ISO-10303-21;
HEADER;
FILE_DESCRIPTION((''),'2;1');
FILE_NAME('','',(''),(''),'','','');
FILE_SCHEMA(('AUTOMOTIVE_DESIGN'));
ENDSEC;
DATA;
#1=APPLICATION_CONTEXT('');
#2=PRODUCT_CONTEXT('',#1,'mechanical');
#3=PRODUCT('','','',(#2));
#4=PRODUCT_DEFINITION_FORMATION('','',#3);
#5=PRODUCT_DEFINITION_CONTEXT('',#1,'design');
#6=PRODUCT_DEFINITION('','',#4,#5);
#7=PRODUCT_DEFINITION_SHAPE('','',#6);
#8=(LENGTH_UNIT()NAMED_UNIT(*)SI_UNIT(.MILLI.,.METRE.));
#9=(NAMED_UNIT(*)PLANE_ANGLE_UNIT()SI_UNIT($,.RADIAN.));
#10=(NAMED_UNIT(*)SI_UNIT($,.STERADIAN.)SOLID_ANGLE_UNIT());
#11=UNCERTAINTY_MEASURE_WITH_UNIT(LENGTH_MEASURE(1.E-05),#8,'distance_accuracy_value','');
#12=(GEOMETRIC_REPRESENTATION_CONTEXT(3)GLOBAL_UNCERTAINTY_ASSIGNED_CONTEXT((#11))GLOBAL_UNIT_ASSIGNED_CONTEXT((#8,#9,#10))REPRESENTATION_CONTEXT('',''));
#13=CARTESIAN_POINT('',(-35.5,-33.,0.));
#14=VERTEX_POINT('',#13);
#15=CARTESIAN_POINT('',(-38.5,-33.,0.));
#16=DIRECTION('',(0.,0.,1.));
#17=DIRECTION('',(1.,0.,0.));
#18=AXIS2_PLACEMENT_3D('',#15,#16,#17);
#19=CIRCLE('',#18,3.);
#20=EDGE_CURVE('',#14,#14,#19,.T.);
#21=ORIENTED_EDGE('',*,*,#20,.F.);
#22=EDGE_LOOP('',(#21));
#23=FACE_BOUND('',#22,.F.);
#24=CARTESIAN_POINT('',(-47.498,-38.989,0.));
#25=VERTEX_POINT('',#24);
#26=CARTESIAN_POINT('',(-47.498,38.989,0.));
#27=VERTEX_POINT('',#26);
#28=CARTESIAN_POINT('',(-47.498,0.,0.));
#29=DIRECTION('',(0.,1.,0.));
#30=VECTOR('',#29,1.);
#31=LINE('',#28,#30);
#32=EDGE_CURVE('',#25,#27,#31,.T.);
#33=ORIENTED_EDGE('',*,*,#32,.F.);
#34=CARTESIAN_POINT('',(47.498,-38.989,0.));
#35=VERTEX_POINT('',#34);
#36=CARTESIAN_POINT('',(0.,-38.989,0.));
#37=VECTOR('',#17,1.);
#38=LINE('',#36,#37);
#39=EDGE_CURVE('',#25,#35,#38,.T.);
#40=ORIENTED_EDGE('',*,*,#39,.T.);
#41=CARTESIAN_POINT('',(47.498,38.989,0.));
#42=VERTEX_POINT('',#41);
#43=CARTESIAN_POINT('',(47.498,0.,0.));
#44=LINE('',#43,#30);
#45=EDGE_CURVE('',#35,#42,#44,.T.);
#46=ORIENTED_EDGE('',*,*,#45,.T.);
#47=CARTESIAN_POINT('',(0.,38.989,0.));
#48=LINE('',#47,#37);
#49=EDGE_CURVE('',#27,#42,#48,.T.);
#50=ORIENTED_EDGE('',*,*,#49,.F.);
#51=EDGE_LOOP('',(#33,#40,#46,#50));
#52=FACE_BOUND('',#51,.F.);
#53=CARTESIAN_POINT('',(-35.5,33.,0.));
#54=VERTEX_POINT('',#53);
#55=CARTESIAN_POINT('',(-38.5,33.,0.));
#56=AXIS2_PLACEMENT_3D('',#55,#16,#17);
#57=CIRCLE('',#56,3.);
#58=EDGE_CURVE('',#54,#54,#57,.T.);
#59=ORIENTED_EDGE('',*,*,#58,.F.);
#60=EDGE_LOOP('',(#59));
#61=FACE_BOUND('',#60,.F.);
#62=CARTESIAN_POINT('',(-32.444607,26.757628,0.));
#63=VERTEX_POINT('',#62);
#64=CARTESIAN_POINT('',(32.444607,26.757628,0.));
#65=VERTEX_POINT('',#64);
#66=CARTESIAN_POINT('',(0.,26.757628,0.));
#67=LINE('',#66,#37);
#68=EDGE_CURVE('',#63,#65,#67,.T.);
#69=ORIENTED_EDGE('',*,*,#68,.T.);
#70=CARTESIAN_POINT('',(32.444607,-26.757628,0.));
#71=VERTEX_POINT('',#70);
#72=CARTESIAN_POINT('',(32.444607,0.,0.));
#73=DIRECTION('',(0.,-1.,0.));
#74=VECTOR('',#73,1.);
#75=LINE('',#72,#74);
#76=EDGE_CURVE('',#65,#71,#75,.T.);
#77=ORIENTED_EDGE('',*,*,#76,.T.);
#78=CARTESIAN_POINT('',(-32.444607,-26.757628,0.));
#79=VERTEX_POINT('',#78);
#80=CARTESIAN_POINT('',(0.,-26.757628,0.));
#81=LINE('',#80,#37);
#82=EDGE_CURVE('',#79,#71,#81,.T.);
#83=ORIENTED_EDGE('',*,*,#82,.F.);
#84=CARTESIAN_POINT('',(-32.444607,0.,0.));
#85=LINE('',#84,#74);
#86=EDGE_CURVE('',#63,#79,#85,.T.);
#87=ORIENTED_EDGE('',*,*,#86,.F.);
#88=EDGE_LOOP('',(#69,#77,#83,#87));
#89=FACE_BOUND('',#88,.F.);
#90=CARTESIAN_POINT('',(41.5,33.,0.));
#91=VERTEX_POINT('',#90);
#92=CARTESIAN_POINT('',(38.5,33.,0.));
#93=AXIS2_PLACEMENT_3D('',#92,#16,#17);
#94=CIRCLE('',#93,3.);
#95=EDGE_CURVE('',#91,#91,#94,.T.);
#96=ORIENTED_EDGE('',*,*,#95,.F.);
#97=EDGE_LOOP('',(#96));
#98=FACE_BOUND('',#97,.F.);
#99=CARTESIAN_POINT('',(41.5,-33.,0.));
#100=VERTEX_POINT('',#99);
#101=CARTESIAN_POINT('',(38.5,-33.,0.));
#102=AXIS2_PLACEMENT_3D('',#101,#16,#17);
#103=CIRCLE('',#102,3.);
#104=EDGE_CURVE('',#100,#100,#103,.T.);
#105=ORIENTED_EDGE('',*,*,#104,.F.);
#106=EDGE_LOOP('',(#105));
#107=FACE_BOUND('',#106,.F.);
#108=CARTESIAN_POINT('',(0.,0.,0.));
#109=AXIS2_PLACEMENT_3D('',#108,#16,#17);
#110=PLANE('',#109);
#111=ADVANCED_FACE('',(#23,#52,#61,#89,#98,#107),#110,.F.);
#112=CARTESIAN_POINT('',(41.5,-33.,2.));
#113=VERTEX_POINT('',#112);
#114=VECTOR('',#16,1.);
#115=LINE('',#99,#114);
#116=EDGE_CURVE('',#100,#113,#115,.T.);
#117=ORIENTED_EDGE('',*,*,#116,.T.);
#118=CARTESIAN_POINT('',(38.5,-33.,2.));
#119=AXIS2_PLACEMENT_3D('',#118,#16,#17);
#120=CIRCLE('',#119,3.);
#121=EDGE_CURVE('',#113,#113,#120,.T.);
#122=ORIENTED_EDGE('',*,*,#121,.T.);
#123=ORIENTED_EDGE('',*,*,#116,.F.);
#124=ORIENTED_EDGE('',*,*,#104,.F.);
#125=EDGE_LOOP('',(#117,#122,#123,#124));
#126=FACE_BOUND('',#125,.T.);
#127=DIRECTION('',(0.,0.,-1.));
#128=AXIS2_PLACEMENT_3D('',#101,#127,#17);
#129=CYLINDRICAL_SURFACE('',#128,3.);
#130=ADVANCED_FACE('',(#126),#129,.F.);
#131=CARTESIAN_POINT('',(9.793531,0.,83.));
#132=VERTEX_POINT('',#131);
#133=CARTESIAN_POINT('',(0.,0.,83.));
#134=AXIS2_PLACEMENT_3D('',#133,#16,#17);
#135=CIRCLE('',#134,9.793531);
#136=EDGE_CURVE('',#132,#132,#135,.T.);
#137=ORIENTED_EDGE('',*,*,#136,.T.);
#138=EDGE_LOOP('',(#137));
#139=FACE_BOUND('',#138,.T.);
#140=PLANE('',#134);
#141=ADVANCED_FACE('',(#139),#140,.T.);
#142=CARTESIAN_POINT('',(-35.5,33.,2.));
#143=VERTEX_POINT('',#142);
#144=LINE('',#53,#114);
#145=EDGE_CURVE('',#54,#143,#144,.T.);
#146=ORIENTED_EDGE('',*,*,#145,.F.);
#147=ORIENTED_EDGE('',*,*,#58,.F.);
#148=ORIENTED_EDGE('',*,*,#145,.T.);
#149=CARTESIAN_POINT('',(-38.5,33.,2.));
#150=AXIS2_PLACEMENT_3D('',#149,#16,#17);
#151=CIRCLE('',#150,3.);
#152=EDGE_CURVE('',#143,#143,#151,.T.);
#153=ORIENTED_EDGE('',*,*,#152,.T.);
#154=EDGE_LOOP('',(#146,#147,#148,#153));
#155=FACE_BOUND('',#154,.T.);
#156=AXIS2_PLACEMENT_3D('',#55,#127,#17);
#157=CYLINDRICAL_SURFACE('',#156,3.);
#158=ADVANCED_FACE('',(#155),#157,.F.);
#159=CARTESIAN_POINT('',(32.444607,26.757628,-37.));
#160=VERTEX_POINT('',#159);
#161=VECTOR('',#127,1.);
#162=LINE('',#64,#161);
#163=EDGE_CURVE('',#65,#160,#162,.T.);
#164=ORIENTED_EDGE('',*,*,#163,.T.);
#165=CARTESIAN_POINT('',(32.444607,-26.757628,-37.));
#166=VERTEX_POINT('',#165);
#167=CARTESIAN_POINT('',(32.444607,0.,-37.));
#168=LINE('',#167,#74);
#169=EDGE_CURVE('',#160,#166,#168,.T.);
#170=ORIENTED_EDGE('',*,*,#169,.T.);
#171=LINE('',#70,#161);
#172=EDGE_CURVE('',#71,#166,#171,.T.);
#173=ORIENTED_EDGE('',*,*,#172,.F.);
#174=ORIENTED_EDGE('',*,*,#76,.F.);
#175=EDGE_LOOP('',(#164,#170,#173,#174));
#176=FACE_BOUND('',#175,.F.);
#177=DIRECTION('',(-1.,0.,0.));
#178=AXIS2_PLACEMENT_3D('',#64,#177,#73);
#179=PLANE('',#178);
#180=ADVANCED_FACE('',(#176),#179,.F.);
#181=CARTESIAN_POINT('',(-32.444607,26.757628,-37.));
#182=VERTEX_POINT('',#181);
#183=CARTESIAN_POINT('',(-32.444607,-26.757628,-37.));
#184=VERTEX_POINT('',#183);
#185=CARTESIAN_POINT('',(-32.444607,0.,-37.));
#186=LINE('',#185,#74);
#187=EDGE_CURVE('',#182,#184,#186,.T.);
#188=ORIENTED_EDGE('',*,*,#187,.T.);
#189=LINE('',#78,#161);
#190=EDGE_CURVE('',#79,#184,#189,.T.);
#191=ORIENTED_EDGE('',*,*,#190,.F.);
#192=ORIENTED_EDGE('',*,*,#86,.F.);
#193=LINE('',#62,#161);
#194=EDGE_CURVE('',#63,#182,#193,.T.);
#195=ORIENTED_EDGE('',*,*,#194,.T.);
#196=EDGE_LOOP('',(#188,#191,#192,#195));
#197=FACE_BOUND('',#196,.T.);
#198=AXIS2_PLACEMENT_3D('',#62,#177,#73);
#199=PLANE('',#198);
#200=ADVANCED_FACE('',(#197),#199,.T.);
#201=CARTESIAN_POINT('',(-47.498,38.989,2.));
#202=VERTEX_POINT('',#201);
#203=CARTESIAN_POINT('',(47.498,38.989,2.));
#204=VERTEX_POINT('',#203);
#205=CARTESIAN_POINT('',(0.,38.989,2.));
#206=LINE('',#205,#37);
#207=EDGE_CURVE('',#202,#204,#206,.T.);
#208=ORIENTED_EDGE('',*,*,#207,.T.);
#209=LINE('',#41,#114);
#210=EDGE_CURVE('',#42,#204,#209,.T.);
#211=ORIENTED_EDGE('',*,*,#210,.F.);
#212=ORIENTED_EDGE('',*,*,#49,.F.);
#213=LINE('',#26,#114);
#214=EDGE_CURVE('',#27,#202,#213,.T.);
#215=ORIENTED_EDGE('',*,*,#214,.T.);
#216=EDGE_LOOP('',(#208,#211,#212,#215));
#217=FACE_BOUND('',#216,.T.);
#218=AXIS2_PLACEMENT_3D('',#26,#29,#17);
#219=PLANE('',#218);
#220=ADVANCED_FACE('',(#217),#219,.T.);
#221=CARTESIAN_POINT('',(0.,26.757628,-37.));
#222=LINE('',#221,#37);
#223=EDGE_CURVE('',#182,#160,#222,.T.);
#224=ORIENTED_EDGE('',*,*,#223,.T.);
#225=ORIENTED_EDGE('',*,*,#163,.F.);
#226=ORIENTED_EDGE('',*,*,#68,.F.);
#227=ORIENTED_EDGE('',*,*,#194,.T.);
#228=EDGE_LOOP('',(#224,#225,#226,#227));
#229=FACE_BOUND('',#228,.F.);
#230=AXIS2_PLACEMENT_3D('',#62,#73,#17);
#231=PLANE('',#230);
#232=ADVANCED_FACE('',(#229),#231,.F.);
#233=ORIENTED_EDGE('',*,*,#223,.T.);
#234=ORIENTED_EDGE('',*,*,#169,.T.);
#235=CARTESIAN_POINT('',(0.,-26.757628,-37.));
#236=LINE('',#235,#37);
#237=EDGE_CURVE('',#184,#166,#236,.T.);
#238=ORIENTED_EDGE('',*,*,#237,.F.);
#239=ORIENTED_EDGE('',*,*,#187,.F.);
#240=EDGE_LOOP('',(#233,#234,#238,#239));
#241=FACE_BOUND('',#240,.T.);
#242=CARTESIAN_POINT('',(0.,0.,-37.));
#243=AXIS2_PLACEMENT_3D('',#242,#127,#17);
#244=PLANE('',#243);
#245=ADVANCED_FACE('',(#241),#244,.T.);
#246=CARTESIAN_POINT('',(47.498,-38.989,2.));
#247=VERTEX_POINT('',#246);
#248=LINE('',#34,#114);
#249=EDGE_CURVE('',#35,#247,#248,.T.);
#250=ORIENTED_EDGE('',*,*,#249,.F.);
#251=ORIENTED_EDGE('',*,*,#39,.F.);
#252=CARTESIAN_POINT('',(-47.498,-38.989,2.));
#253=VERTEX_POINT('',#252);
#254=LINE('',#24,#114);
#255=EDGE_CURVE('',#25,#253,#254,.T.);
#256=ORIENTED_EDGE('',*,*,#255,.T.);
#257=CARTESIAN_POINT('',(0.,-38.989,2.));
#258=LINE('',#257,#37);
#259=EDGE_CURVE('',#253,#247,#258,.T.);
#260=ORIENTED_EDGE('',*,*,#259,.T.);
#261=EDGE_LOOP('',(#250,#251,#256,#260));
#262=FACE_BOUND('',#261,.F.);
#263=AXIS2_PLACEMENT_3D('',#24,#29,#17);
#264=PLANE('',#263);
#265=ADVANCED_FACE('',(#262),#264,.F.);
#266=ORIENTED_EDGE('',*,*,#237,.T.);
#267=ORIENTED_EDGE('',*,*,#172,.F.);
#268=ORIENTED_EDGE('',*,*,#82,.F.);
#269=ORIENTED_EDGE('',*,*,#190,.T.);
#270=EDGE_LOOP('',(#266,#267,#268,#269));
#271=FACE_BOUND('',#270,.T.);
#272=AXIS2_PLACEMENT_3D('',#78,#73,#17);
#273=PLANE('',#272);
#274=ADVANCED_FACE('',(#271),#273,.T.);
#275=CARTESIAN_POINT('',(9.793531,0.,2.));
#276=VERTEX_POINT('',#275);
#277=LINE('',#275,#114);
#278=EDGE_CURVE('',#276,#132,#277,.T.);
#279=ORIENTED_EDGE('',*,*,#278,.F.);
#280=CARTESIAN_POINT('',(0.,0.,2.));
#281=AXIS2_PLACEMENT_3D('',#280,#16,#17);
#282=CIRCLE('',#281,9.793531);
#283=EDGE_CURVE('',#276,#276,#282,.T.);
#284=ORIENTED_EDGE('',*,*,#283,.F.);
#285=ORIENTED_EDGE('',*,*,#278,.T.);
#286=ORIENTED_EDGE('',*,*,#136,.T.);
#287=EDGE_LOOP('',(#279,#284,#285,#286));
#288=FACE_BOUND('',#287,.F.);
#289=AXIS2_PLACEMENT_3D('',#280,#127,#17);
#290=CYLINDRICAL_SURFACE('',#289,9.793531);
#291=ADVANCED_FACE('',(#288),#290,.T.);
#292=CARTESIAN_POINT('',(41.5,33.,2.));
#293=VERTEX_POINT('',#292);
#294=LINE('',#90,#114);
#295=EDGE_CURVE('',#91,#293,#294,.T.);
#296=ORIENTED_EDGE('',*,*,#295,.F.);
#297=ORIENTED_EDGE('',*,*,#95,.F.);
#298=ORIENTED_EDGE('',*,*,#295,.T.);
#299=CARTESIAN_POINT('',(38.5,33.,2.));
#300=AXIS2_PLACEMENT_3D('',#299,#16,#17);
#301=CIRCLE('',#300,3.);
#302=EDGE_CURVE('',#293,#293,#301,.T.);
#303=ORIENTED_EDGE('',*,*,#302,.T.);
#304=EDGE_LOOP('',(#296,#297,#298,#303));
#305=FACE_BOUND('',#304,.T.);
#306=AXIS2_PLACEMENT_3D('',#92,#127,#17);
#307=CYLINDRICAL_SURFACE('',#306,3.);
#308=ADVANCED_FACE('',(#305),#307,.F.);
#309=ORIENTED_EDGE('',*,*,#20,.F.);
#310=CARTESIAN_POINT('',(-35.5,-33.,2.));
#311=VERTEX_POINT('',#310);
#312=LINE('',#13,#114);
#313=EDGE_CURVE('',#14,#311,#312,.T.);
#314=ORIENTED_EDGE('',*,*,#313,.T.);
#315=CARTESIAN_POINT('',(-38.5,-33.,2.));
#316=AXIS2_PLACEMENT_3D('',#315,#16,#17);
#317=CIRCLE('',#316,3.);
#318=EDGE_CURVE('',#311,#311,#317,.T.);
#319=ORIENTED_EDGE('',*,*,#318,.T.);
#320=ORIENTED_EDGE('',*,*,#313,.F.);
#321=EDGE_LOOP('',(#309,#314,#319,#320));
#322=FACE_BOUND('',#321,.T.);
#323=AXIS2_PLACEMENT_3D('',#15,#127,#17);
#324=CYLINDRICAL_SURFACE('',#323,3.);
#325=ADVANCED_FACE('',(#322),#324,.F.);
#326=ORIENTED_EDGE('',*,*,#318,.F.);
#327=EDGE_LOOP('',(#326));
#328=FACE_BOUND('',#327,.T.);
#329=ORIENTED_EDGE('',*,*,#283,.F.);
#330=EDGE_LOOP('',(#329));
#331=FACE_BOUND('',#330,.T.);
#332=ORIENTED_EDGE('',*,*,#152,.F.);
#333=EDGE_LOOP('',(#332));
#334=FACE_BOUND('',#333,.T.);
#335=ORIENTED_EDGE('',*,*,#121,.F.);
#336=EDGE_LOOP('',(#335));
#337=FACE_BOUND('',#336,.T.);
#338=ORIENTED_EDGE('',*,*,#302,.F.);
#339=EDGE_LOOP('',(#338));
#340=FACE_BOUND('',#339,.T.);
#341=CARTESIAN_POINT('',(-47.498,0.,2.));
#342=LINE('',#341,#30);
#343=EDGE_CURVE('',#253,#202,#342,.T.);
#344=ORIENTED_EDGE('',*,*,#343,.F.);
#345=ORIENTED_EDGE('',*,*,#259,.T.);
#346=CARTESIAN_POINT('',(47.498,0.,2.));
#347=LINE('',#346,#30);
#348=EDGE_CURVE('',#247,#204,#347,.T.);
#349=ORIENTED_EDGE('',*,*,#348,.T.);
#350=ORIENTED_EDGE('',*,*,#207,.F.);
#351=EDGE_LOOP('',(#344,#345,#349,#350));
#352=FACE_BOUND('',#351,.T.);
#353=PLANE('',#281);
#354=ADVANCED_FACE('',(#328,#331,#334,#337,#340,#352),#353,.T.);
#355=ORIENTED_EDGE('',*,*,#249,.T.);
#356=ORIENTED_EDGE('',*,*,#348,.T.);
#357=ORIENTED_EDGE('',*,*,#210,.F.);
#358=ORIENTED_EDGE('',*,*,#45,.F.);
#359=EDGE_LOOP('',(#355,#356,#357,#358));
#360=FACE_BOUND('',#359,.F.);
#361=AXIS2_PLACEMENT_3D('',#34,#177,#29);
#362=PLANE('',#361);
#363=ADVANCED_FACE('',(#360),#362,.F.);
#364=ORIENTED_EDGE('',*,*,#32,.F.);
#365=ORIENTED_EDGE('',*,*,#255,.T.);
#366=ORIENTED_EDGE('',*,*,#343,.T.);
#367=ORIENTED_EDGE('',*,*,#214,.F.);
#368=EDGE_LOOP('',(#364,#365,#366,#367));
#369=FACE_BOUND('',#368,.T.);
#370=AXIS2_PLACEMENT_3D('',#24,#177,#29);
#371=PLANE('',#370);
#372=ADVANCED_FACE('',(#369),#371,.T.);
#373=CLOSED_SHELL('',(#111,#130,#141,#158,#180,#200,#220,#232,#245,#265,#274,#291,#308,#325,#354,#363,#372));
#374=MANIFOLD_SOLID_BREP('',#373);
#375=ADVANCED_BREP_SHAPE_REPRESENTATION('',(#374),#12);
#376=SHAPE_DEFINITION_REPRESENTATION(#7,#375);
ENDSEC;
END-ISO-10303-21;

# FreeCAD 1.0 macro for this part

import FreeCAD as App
import Part
import Sketcher
from FreeCAD import Vector
Q = App.Units.Quantity

doc = App.newDocument("Part")
body = doc.addObject("PartDesign::Body", "Body")

# Sketch on XY plane
sketch1 = doc.addObject("Sketcher::SketchObject", "Sketch")
body.addObject(sketch1)
sketch1.AttachmentSupport = (doc.XY_Plane, [""])
sketch1.MapMode = "FlatFace"
sketch1.addGeometry([
    Part.LineSegment(Vector(-47.5, 39, 0), Vector(-47.5, -39, 0)),  # 0
    Part.LineSegment(Vector(-47.5, -39, 0), Vector(47.5, -39, 0)),  # 1
    Part.LineSegment(Vector(47.5, -39, 0), Vector(47.5, 39, 0)),  # 2
    Part.LineSegment(Vector(47.5, 39, 0), Vector(-47.5, 39, 0)),  # 3
    Part.Circle(Vector(-38.5, -33, 0), Vector(0, 0, 1), 3),  # 4
    Part.Circle(Vector(38.5, -33, 0), Vector(0, 0, 1), 3),  # 5
    Part.Circle(Vector(-38.5, 33, 0), Vector(0, 0, 1), 3),  # 6
    Part.Circle(Vector(38.5, 33, 0), Vector(0, 0, 1), 3),  # 7
], False)
sketch1.addConstraint([
    Sketcher.Constraint("Coincident", 0, 2, 1, 1),
    Sketcher.Constraint("Coincident", 1, 2, 2, 1),
    Sketcher.Constraint("Coincident", 2, 2, 3, 1),
    Sketcher.Constraint("Coincident", 3, 2, 0, 1),
    Sketcher.Constraint("Vertical", 0),
    Sketcher.Constraint("Horizontal", 1),
    Sketcher.Constraint("Vertical", 2),
    Sketcher.Constraint("Horizontal", 3),
    Sketcher.Constraint("Equal", 4, 5),
    Sketcher.Constraint("Equal", 5, 6),
    Sketcher.Constraint("Equal", 6, 7),
    Sketcher.Constraint("Symmetric", 5, 3, 6, 3, -1, 1),
    Sketcher.Constraint("Symmetric", 4, 3, 7, 3, -1, 1),
    Sketcher.Constraint("Symmetric", 0, 2, 2, 2, -1, 1),
    Sketcher.Constraint("Symmetric", 4, 3, 5, 3, -2),
    Sketcher.Constraint("Diameter", 4, Q("6 mm")),
    Sketcher.Constraint("DistanceY", 4, 3, -1, 1, Q("33 mm")),
    Sketcher.Constraint("DistanceX", 4, 3, 5, 3, Q("77 mm")),
    Sketcher.Constraint("DistanceX", 1, 1, 1, 2, Q("94.996 mm")),
    Sketcher.Constraint("DistanceY", 0, 2, 0, 1, Q("77.978 mm")),
])
pad1 = doc.addObject("PartDesign::Pad", "Pad")
body.addObject(pad1)
pad1.Profile = sketch1
pad1.Length = 2

# Sketch on XY plane
sketch2 = doc.addObject("Sketcher::SketchObject", "Sketch001")
body.addObject(sketch2)
sketch2.AttachmentSupport = (doc.XY_Plane, [""])
sketch2.MapMode = "FlatFace"
sketch2.addGeometry([
    Part.LineSegment(Vector(-32, -27, 0), Vector(-32, 27, 0)),
    Part.LineSegment(Vector(-32, 27, 0), Vector(32, 27, 0)),
    Part.LineSegment(Vector(32, 27, 0), Vector(32, -27, 0)),
    Part.LineSegment(Vector(32, -27, 0), Vector(-32, -27, 0)),
], False)
sketch2.addConstraint([
    Sketcher.Constraint("Coincident", 0, 2, 1, 1),
    Sketcher.Constraint("Coincident", 1, 2, 2, 1),
    Sketcher.Constraint("Coincident", 2, 2, 3, 1),
    Sketcher.Constraint("Coincident", 3, 2, 0, 1),
    Sketcher.Constraint("Vertical", 0),
    Sketcher.Constraint("Horizontal", 1),
    Sketcher.Constraint("Vertical", 2),
    Sketcher.Constraint("Horizontal", 3),
    Sketcher.Constraint("Symmetric", 0, 2, 2, 2, -1, 1),
    Sketcher.Constraint("DistanceX", 1, 1, 1, 2, Q("64.889214 mm")),
    Sketcher.Constraint("DistanceY", 0, 1, 0, 2, Q("53.515256 mm")),
])
pad2 = doc.addObject("PartDesign::Pad", "Pad001")
body.addObject(pad2)
pad2.Profile = sketch2
pad2.Length = 37
pad2.Reversed = True

# Sketch on XY plane
sketch3 = doc.addObject("Sketcher::SketchObject", "Sketch002")
body.addObject(sketch3)
sketch3.AttachmentSupport = (doc.XY_Plane, [""])
sketch3.MapMode = "FlatFace"
sketch3.AttachmentOffset = App.Placement(Vector(0, 0, 2), App.Rotation())
sketch3.addGeometry(Part.Circle(Vector(0, 0, 0), Vector(0, 0, 1), 10), False)
sketch3.addConstraint([
    Sketcher.Constraint("Coincident", 0, 3, -1, 1),
    Sketcher.Constraint("Diameter", 0, Q("19.587062 mm")),
])
pad3 = doc.addObject("PartDesign::Pad", "Pad002")
body.addObject(pad3)
pad3.Profile = sketch3
pad3.Length = 81

doc.recompute()
